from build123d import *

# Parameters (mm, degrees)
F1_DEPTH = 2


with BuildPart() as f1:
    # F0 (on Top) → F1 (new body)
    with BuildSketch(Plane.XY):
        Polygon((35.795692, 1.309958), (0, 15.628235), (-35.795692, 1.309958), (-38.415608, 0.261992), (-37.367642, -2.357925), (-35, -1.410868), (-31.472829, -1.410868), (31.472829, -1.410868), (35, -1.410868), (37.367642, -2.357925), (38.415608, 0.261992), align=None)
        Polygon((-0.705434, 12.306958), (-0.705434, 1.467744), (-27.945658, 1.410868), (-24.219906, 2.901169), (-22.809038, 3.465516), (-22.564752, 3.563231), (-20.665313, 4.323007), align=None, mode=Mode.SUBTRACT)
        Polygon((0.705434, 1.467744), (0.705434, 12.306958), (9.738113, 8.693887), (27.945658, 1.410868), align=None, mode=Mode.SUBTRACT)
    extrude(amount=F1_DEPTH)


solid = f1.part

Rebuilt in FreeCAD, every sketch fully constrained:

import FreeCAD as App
import Part
import Sketcher

V = App.Vector


def add_polygon(sketch, points):
    """Adds a closed chain of lines whose ends are joined by coincident constraints."""
    first, n = sketch.GeometryCount, len(points)
    for a, b in zip(points, points[1:] + points[:1]):
        sketch.addGeometry(Part.LineSegment(App.Vector(*a, 0), App.Vector(*b, 0)), False)
    for i in range(n):
        sketch.addConstraint(Sketcher.Constraint("Coincident", first + i, 2, first + (i + 1) % n, 1))

doc = App.newDocument("Part")
body = doc.addObject("PartDesign::Body", "Body")

sketch1 = body.newObject("Sketcher::SketchObject", "Sketch")
sketch1.AttachmentSupport = (doc.getObject("XY_Plane"), [""])
sketch1.MapMode = "FlatFace"
add_polygon(sketch1, [(35.795692, 1.309958), (0, 15.628235), (-35.795692, 1.309958), (-38.415608, 0.261992), (-37.367642, -2.357925), (-35, -1.410868), (35, -1.410868), (37.367642, -2.357925), (38.415608, 0.261992)])
add_polygon(sketch1, [(27.945658, 1.410868), (0.705434, 1.467744), (0.705434, 12.306958), (9.738113, 8.693887)])
add_polygon(sketch1, [(-20.665313, 4.323007), (-0.705434, 12.306958), (-0.705434, 1.467744), (-27.945658, 1.410868), (-24.219906, 2.901169), (-22.809038, 3.465516), (-22.564752, 3.563231)])
sketch1.addConstraint([
    Sketcher.Constraint("Horizontal", 5),
    Sketcher.Constraint("Vertical", 10),
    Sketcher.Constraint("Vertical", 14),
    Sketcher.Constraint("PointOnObject", 0, 2, -2),
    Sketcher.Constraint("DistanceX", 5, 1, 5, 2, 70.0),
    Sketcher.Constraint("DistanceX", 4, 2, -1, 1, 35.0),
    Sketcher.Constraint("DistanceY", 8, 2, 10, 2, 10.997),
    Sketcher.Constraint("DistanceY", 1, 2, 10, 2, 10.997),
    Sketcher.Constraint("DistanceX", 1, 2, 7, 2, 74.2113),
    Sketcher.Constraint("DistanceY", 15, 2, 16, 2, 1.490301),
    Sketcher.Constraint("DistanceX", 2, 2, 16, 2, 14.195702),
    Sketcher.Constraint("DistanceY", 4, 2, 18, 2, 4.974099),
    Sketcher.Constraint("Distance", 0, 38.55314),
    Sketcher.Constraint("Distance", 1, 38.55314),
    Sketcher.Constraint("Distance", 4, 2.550029),
    Sketcher.Constraint("Distance", 6, 2.550029),
    Sketcher.Constraint("Distance", 17, 1.519551),
    Sketcher.Constraint("Distance", 19, 2.045759),
    Sketcher.Constraint("DistanceY", 10, 1, 10, 2, 10.839214),
    Sketcher.Constraint("DistanceY", 14, 2, 14, 1, 10.839214),
    Sketcher.Constraint("DistanceX", 3, 2, -1, 1, 37.367642),
    Sketcher.Constraint("DistanceX", -1, 1, 6, 2, 37.367642),
    Sketcher.Constraint("DistanceX", -1, 1, 12, 2, 27.945658),
    Sketcher.Constraint("DistanceX", 15, 2, -1, 1, 27.945658),
    Sketcher.Constraint("DistanceY", -1, 1, 16, 2, 2.901169),
    Sketcher.Constraint("DistanceX", 17, 2, -1, 1, 22.809038),
    Sketcher.Constraint("DistanceX", 18, 2, -1, 1, 22.564752),
    Sketcher.Constraint("DistanceY", -1, 1, 18, 2, 3.563231),
    Sketcher.Constraint("DistanceX", 3, 2, 1, 2, 1.57195),
    Sketcher.Constraint("DistanceY", 3, 2, 0, 2, 17.98616),
    Sketcher.Constraint("DistanceY", 4, 2, 2, 2, 1.67286),
    Sketcher.Constraint("DistanceY", 5, 2, 7, 2, 1.67286),
    Sketcher.Constraint("DistanceX", 9, 2, 8, 2, 35.090258),
    Sketcher.Constraint("DistanceX", 10, 2, 11, 2, 9.032679),
    Sketcher.Constraint("DistanceY", 11, 2, 10, 2, 3.613071),
    Sketcher.Constraint("DistanceY", 8, 2, 12, 2, 0.10091),
    Sketcher.Constraint("DistanceY", 11, 2, 13, 2, 3.613071),
    Sketcher.Constraint("DistanceX", 2, 2, 15, 2, 10.46995),
    Sketcher.Constraint("DistanceX", 18, 2, 19, 2, 1.899439),
    Sketcher.Constraint("Distance", 13, 21.497447),
])
pad1 = body.newObject("PartDesign::Pad", "Pad")
pad1.Profile = sketch1
pad1.Length = 2

doc.recompute()
